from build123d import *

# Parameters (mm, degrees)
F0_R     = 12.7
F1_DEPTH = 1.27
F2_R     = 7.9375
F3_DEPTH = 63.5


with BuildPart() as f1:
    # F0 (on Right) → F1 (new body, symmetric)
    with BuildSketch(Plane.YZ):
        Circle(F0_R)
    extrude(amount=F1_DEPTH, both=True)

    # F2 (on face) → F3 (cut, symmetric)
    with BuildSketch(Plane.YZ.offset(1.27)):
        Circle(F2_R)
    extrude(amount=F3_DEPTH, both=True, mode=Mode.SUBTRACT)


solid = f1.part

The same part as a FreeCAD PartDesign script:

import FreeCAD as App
import Part
import Sketcher
from FreeCAD import Vector
Q = App.Units.Quantity

doc = App.newDocument("Part")
body = doc.addObject("PartDesign::Body", "Body")

# Sketch on YZ plane
sketch1 = body.newObject("Sketcher::SketchObject", "Sketch")
sketch1.AttachmentSupport = (doc.getObject("YZ_Plane"), [""])
sketch1.MapMode = "FlatFace"
sketch1.addGeometry(Part.Circle(Vector(0, 0, 0), Vector(0, 0, 1), 13), False)
sketch1.addConstraint([
    Sketcher.Constraint("Coincident", 0, 3, -1, 1),
    Sketcher.Constraint("Diameter", 0, Q("1 in")),
])
pad1 = body.newObject("PartDesign::Pad", "Pad")
pad1.Profile = sketch1
pad1.Length = Q("0.1 in")
pad1.Midplane = True

# Sketch on YZ plane
sketch2 = body.newObject("Sketcher::SketchObject", "Sketch001")
sketch2.AttachmentSupport = (doc.getObject("YZ_Plane"), [""])
sketch2.MapMode = "FlatFace"
sketch2.AttachmentOffset = App.Placement(Vector(0, 0, 0.05 * 25.4), App.Rotation())
sketch2.addGeometry(Part.Circle(Vector(0, 0, 0), Vector(0, 0, 1), 8), False)
sketch2.addConstraint([
    Sketcher.Constraint("Coincident", 0, 3, -1, 1),
    Sketcher.Constraint("Diameter", 0, Q("0.625 in")),
])
pocket1 = body.newObject("PartDesign::Pocket", "Pocket")
pocket1.Profile = sketch2
pocket1.Length = Q("5 in")
pocket1.Midplane = True

doc.recompute()
